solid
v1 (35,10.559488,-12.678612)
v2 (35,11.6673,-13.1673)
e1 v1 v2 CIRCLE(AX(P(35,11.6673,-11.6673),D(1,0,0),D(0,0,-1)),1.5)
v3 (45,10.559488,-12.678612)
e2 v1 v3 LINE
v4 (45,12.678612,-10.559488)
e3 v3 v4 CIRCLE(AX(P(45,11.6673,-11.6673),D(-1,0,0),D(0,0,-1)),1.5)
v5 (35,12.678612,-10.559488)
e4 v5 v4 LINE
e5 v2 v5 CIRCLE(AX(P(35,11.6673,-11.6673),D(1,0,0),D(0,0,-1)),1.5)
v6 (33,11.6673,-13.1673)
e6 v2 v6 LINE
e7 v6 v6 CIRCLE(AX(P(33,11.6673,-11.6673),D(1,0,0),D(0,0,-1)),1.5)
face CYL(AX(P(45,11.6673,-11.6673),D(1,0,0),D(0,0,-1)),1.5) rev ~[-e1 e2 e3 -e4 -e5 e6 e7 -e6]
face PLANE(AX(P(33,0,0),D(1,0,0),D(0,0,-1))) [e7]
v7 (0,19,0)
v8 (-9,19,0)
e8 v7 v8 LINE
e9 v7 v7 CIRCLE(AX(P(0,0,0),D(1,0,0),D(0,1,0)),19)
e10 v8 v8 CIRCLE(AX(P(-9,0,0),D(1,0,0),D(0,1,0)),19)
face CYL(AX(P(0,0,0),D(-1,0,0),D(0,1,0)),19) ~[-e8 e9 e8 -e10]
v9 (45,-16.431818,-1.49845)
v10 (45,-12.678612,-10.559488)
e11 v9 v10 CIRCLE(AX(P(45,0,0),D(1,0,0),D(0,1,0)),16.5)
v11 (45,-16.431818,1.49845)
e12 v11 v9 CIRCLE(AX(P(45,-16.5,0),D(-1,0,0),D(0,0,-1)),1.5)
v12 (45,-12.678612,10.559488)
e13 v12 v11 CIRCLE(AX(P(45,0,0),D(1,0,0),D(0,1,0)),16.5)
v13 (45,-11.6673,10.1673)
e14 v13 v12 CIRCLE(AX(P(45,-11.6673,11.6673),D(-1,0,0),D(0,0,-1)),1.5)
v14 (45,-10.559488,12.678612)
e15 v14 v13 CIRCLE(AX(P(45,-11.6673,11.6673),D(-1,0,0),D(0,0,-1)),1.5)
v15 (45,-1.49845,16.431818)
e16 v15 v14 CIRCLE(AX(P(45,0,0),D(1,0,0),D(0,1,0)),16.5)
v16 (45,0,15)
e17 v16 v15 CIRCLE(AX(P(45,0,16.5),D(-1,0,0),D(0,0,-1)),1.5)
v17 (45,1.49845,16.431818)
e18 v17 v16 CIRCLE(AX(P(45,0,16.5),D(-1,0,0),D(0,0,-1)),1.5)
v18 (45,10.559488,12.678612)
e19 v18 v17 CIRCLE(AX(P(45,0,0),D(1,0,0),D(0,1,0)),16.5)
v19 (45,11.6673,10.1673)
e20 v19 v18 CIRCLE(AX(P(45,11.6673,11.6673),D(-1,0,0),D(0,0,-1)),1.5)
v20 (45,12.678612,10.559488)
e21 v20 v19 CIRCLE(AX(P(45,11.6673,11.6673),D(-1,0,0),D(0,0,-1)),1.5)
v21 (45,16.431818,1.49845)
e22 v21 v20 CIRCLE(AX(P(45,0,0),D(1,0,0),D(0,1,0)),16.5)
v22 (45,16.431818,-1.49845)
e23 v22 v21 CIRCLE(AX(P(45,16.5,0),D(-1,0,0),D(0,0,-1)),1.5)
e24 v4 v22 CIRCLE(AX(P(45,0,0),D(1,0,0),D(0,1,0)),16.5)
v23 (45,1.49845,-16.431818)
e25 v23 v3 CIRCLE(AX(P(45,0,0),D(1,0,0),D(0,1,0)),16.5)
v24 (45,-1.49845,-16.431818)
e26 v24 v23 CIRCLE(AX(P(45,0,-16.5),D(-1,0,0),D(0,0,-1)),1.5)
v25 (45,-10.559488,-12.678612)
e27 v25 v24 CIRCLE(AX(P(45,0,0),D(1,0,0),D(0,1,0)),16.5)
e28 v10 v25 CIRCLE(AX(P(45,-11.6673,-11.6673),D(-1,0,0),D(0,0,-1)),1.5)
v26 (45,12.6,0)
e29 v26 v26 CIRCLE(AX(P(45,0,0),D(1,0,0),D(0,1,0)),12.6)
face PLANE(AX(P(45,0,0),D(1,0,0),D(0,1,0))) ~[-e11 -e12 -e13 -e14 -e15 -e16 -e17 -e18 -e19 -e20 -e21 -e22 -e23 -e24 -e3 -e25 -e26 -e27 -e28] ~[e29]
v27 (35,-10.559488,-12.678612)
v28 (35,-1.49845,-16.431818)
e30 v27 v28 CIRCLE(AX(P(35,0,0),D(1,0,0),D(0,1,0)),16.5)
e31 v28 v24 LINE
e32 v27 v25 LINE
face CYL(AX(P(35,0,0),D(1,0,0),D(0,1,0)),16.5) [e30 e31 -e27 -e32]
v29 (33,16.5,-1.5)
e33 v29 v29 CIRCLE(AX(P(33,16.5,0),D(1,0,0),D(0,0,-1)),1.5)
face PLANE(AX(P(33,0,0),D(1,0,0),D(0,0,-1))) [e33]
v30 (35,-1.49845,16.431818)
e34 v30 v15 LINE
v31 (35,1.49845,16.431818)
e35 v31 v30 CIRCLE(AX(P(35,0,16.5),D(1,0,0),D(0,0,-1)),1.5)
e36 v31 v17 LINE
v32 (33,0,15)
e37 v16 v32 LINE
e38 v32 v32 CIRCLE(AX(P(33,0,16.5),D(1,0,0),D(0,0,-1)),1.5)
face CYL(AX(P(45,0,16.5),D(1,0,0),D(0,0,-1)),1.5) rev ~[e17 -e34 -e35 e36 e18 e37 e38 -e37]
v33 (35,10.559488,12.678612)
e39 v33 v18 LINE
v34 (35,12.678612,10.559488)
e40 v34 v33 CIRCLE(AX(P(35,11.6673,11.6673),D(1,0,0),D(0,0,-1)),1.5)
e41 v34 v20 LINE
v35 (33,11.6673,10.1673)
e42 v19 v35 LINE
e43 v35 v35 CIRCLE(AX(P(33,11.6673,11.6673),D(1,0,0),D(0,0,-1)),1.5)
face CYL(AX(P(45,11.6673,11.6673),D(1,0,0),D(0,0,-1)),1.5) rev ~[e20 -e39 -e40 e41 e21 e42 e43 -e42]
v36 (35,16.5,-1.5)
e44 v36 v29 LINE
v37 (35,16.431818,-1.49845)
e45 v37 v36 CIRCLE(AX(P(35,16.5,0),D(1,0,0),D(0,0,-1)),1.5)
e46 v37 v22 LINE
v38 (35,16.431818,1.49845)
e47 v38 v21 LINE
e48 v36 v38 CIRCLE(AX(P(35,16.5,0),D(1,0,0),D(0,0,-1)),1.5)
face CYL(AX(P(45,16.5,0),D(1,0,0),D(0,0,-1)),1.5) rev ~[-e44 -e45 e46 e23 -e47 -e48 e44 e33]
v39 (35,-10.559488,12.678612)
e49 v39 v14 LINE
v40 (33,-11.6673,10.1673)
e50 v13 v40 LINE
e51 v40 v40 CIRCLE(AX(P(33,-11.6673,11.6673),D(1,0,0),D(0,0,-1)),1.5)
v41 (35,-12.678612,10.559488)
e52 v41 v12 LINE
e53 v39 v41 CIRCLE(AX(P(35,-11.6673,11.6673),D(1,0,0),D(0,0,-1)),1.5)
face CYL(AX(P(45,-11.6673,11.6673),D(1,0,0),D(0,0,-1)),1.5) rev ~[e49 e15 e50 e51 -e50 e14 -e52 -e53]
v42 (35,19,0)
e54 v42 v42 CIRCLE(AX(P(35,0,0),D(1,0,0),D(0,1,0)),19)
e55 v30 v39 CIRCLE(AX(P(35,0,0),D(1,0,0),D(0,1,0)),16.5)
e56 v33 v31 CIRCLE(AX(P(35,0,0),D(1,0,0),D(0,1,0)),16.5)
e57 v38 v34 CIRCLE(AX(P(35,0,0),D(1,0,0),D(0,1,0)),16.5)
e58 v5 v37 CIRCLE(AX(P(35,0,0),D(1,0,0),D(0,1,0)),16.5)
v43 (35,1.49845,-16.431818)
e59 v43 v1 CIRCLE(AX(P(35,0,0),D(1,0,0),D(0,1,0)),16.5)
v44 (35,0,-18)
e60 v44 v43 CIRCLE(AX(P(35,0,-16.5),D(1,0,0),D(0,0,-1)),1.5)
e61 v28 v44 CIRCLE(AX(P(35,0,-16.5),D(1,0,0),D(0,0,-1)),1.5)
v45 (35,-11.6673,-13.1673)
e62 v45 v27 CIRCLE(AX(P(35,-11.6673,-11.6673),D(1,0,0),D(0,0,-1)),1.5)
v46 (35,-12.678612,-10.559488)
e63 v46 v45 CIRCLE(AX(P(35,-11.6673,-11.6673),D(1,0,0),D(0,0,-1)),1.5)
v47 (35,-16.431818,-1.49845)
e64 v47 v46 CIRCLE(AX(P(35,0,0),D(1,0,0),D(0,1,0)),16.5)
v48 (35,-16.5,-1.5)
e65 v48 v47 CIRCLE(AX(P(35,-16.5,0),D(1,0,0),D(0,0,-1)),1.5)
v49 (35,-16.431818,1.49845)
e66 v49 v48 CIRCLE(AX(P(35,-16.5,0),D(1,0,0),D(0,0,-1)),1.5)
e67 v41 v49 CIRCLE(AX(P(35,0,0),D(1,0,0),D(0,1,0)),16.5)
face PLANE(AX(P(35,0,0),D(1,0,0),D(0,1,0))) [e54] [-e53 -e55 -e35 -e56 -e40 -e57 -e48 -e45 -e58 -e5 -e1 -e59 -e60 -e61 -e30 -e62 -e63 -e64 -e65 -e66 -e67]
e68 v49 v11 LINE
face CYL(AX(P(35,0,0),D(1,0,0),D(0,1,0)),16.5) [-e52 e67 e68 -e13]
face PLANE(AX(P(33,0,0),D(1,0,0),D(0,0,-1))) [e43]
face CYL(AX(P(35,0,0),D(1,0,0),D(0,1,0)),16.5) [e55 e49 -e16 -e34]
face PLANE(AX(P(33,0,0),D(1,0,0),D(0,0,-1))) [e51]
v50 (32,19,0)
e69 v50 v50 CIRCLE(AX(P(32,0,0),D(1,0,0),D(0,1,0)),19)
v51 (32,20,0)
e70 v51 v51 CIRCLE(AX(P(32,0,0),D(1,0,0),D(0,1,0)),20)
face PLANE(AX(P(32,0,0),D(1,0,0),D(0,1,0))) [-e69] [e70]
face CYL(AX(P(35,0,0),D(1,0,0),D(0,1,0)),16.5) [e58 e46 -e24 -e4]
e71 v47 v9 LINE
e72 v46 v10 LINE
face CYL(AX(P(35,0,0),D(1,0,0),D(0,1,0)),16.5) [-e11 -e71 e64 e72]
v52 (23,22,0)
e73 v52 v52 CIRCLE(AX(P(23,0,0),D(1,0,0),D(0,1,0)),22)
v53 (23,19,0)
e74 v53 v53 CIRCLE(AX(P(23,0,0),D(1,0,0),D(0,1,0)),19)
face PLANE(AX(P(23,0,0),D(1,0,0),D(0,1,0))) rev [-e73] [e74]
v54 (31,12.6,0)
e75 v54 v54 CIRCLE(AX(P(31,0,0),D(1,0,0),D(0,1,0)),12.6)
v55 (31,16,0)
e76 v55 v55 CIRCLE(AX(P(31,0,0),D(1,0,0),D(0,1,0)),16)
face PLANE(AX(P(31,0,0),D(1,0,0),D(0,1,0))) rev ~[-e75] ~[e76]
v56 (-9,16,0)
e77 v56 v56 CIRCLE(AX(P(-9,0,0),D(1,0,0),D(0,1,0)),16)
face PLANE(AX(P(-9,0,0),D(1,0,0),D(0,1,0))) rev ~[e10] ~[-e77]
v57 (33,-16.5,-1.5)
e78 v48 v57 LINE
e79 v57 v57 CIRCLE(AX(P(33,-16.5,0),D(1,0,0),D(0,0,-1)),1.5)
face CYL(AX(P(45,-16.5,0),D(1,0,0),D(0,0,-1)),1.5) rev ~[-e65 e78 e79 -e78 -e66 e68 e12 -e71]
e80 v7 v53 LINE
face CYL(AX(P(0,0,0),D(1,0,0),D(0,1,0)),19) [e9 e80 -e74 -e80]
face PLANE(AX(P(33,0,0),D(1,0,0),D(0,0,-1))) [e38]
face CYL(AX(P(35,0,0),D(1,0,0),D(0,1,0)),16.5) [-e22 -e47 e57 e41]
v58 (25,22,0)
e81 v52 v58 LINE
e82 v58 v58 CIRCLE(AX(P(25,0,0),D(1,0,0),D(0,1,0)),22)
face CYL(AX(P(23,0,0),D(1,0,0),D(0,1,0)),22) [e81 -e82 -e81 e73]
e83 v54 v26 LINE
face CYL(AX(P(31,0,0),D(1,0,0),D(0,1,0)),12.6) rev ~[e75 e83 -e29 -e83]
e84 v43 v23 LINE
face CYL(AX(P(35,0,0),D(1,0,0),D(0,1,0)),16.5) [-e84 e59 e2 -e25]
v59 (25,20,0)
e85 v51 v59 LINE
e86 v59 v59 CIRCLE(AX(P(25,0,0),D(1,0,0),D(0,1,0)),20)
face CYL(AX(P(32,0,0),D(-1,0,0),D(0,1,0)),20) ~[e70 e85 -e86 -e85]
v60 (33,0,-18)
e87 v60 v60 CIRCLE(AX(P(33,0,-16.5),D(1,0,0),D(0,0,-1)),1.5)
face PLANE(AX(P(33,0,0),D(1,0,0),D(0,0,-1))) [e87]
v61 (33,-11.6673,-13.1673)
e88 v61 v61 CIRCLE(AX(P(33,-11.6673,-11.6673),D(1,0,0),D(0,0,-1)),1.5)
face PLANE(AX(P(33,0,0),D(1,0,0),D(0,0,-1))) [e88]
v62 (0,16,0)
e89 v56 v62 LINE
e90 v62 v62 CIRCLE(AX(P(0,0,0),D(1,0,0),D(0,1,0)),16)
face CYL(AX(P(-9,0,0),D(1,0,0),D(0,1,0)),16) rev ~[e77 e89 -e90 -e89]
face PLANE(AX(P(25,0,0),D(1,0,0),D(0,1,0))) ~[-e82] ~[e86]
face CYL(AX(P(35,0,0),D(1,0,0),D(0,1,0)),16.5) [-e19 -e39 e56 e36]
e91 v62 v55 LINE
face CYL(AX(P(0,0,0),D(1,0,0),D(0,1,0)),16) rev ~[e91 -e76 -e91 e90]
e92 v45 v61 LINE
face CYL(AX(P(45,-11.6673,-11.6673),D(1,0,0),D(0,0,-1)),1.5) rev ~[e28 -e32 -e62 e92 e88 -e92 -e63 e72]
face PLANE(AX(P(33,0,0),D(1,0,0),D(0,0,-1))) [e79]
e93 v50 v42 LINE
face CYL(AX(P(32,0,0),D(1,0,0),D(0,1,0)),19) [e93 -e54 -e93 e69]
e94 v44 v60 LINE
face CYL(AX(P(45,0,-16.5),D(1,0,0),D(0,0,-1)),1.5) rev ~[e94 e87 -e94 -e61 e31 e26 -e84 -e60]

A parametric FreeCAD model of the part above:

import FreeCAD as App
import Part
import Sketcher

V = App.Vector
Q = App.Units.Quantity

doc = App.newDocument("Part")
body = doc.addObject("PartDesign::Body", "Body")

# Sketch on XY plane
sketch1 = body.newObject("Sketcher::SketchObject", "Sketch")
sketch1.AttachmentSupport = (doc.getObject("XY_Plane"), [""])
sketch1.MapMode = "FlatFace"
sketch1.addGeometry(Part.LineSegment(V(32, 19, 0), V(32, 20, 0)), False)
sketch1.addGeometry(Part.LineSegment(V(32, 20, 0), V(25, 20, 0)), False)
sketch1.addGeometry(Part.LineSegment(V(25, 20, 0), V(25, 22, 0)), False)
sketch1.addGeometry(Part.LineSegment(V(25, 22, 0), V(23, 22, 0)), False)
sketch1.addGeometry(Part.LineSegment(V(23, 22, 0), V(23, 19, 0)), False)
sketch1.addGeometry(Part.LineSegment(V(23, 19, 0), V(-9, 19, 0)), False)
sketch1.addGeometry(Part.LineSegment(V(-9, 19, 0), V(-9, 16, 0)), False)
sketch1.addGeometry(Part.LineSegment(V(-9, 16, 0), V(31, 16, 0)), False)
sketch1.addGeometry(Part.LineSegment(V(31, 16, 0), V(31, 12.6, 0)), False)
sketch1.addGeometry(Part.LineSegment(V(31, 12.6, 0), V(45, 12.6, 0)), False)
sketch1.addGeometry(Part.LineSegment(V(45, 12.6, 0), V(45, 16.5, 0)), False)
sketch1.addGeometry(Part.LineSegment(V(45, 16.5, 0), V(35, 16.5, 0)), False)
sketch1.addGeometry(Part.LineSegment(V(35, 16.5, 0), V(35, 19, 0)), False)
sketch1.addGeometry(Part.LineSegment(V(35, 19, 0), V(32, 19, 0)), False)
sketch1.addConstraint(Sketcher.Constraint("Coincident", 0, 2, 1, 1))
sketch1.addConstraint(Sketcher.Constraint("Coincident", 1, 2, 2, 1))
sketch1.addConstraint(Sketcher.Constraint("Coincident", 2, 2, 3, 1))
sketch1.addConstraint(Sketcher.Constraint("Coincident", 3, 2, 4, 1))
sketch1.addConstraint(Sketcher.Constraint("Coincident", 4, 2, 5, 1))
sketch1.addConstraint(Sketcher.Constraint("Coincident", 5, 2, 6, 1))
sketch1.addConstraint(Sketcher.Constraint("Coincident", 6, 2, 7, 1))
sketch1.addConstraint(Sketcher.Constraint("Coincident", 7, 2, 8, 1))
sketch1.addConstraint(Sketcher.Constraint("Coincident", 8, 2, 9, 1))
sketch1.addConstraint(Sketcher.Constraint("Coincident", 9, 2, 10, 1))
sketch1.addConstraint(Sketcher.Constraint("Coincident", 10, 2, 11, 1))
sketch1.addConstraint(Sketcher.Constraint("Coincident", 11, 2, 12, 1))
sketch1.addConstraint(Sketcher.Constraint("Coincident", 12, 2, 13, 1))
sketch1.addConstraint(Sketcher.Constraint("Coincident", 13, 2, 0, 1))
sketch1.addConstraint(Sketcher.Constraint("Vertical", 0))
sketch1.addConstraint(Sketcher.Constraint("Horizontal", 1))
sketch1.addConstraint(Sketcher.Constraint("Vertical", 2))
sketch1.addConstraint(Sketcher.Constraint("Horizontal", 3))
sketch1.addConstraint(Sketcher.Constraint("Vertical", 4))
sketch1.addConstraint(Sketcher.Constraint("Horizontal", 5))
sketch1.addConstraint(Sketcher.Constraint("Vertical", 6))
sketch1.addConstraint(Sketcher.Constraint("Horizontal", 7))
sketch1.addConstraint(Sketcher.Constraint("Vertical", 8))
sketch1.addConstraint(Sketcher.Constraint("Horizontal", 9))
sketch1.addConstraint(Sketcher.Constraint("Vertical", 10))
sketch1.addConstraint(Sketcher.Constraint("Horizontal", 11))
sketch1.addConstraint(Sketcher.Constraint("Vertical", 12))
sketch1.addConstraint(Sketcher.Constraint("Horizontal", 13))
sketch1.addConstraint(Sketcher.Constraint("Horizontal", 5, 2, 12, 2))
sketch1.addConstraint(Sketcher.Constraint("Equal", 3, 2))
sketch1.addConstraint(Sketcher.Constraint("Equal", 13, 4))
sketch1.addConstraint(Sketcher.Constraint("Equal", 4, 6))
sketch1.addConstraint(Sketcher.Constraint("DistanceX", 1, 2, 1, 1, Q("7 mm")))
sketch1.addConstraint(Sketcher.Constraint("DistanceX", 3, 2, 3, 1, Q("2 mm")))
sketch1.addConstraint(Sketcher.Constraint("DistanceX", 7, 1, 7, 2, Q("40 mm")))
sketch1.addConstraint(Sketcher.Constraint("DistanceX", 9, 1, 9, 2, Q("14 mm")))
sketch1.addConstraint(Sketcher.Constraint("DistanceX", 11, 2, 11, 1, Q("10 mm")))
sketch1.addConstraint(Sketcher.Constraint("DistanceX", 13, 2, 13, 1, Q("3 mm")))
sketch1.addConstraint(Sketcher.Constraint("DistanceX", -1, 1, 3, 2, Q("23 mm")))
sketch1.addConstraint(Sketcher.Constraint("DistanceY", -1, 1, 6, 2, Q("16 mm")))
sketch1.addConstraint(Sketcher.Constraint("DistanceY", -1, 1, 10, 2, Q("16.5 mm")))
sketch1.addConstraint(Sketcher.Constraint("DistanceY", 8, 2, 8, 1, Q("3.4 mm")))
revolution = body.newObject("PartDesign::Revolution", "Revolution")
revolution.Profile = sketch1
revolution.ReferenceAxis = (sketch1, ["H_Axis"])
revolution.Angle = 360

# Sketch on YZ plane
sketch2 = body.newObject("Sketcher::SketchObject", "Sketch001")
sketch2.AttachmentSupport = (doc.getObject("YZ_Plane"), [""])
sketch2.MapMode = "FlatFace"
sketch2.AttachmentOffset = App.Placement(V(0, 0, 45), App.Rotation())
sketch2.addGeometry(Part.Circle(V(0, -16.5, 0), V(0, 0, 1), 1.5), False)
sketch2.addGeometry(Part.Circle(V(11.7, -11.7, 0), V(0, 0, 1), 1.5), False)
sketch2.addGeometry(Part.Circle(V(-11.7, -11.7, 0), V(0, 0, 1), 1.5), False)
sketch2.addGeometry(Part.Circle(V(16.5, 0, 0), V(0, 0, 1), 1.5), False)
sketch2.addGeometry(Part.Circle(V(-16.5, 0, 0), V(0, 0, 1), 1.5), False)
sketch2.addGeometry(Part.Circle(V(11.7, 11.7, 0), V(0, 0, 1), 1.5), False)
sketch2.addGeometry(Part.Circle(V(-11.7, 11.7, 0), V(0, 0, 1), 1.5), False)
sketch2.addGeometry(Part.Circle(V(0, 16.5, 0), V(0, 0, 1), 1.5), False)
sketch2.addConstraint(Sketcher.Constraint("Equal", 0, 1))
sketch2.addConstraint(Sketcher.Constraint("Equal", 1, 2))
sketch2.addConstraint(Sketcher.Constraint("Equal", 2, 3))
sketch2.addConstraint(Sketcher.Constraint("Equal", 3, 4))
sketch2.addConstraint(Sketcher.Constraint("Equal", 4, 5))
sketch2.addConstraint(Sketcher.Constraint("Equal", 5, 6))
sketch2.addConstraint(Sketcher.Constraint("Equal", 6, 7))
sketch2.addConstraint(Sketcher.Constraint("Symmetric", 3, 3, 4, 3, -1, 1))
sketch2.addConstraint(Sketcher.Constraint("Symmetric", 2, 3, 5, 3, -1, 1))
sketch2.addConstraint(Sketcher.Constraint("Symmetric", 1, 3, 6, 3, -1, 1))
sketch2.addConstraint(Sketcher.Constraint("Symmetric", 0, 3, 7, 3, -1, 1))
sketch2.addConstraint(Sketcher.Constraint("Symmetric", 1, 3, 2, 3, -2))
sketch2.addConstraint(Sketcher.Constraint("PointOnObject", 0, 3, -2))
sketch2.addConstraint(Sketcher.Constraint("PointOnObject", 3, 3, -1))
sketch2.addConstraint(Sketcher.Constraint("Diameter", 0, Q("3 mm")))
sketch2.addConstraint(Sketcher.Constraint("DistanceX", 4, 3, 3, 3, Q("33 mm")))
sketch2.addConstraint(Sketcher.Constraint("DistanceY", 0, 3, -1, 1, Q("16.5 mm")))
sketch2.addConstraint(Sketcher.Constraint("DistanceX", -1, 1, 1, 3, Q("11.6673 mm")))
sketch2.addConstraint(Sketcher.Constraint("DistanceY", 1, 3, -1, 1, Q("11.6673 mm")))
pocket1 = body.newObject("PartDesign::Pocket", "Pocket")
pocket1.Profile = sketch2
pocket1.Length = 12

doc.recompute()
